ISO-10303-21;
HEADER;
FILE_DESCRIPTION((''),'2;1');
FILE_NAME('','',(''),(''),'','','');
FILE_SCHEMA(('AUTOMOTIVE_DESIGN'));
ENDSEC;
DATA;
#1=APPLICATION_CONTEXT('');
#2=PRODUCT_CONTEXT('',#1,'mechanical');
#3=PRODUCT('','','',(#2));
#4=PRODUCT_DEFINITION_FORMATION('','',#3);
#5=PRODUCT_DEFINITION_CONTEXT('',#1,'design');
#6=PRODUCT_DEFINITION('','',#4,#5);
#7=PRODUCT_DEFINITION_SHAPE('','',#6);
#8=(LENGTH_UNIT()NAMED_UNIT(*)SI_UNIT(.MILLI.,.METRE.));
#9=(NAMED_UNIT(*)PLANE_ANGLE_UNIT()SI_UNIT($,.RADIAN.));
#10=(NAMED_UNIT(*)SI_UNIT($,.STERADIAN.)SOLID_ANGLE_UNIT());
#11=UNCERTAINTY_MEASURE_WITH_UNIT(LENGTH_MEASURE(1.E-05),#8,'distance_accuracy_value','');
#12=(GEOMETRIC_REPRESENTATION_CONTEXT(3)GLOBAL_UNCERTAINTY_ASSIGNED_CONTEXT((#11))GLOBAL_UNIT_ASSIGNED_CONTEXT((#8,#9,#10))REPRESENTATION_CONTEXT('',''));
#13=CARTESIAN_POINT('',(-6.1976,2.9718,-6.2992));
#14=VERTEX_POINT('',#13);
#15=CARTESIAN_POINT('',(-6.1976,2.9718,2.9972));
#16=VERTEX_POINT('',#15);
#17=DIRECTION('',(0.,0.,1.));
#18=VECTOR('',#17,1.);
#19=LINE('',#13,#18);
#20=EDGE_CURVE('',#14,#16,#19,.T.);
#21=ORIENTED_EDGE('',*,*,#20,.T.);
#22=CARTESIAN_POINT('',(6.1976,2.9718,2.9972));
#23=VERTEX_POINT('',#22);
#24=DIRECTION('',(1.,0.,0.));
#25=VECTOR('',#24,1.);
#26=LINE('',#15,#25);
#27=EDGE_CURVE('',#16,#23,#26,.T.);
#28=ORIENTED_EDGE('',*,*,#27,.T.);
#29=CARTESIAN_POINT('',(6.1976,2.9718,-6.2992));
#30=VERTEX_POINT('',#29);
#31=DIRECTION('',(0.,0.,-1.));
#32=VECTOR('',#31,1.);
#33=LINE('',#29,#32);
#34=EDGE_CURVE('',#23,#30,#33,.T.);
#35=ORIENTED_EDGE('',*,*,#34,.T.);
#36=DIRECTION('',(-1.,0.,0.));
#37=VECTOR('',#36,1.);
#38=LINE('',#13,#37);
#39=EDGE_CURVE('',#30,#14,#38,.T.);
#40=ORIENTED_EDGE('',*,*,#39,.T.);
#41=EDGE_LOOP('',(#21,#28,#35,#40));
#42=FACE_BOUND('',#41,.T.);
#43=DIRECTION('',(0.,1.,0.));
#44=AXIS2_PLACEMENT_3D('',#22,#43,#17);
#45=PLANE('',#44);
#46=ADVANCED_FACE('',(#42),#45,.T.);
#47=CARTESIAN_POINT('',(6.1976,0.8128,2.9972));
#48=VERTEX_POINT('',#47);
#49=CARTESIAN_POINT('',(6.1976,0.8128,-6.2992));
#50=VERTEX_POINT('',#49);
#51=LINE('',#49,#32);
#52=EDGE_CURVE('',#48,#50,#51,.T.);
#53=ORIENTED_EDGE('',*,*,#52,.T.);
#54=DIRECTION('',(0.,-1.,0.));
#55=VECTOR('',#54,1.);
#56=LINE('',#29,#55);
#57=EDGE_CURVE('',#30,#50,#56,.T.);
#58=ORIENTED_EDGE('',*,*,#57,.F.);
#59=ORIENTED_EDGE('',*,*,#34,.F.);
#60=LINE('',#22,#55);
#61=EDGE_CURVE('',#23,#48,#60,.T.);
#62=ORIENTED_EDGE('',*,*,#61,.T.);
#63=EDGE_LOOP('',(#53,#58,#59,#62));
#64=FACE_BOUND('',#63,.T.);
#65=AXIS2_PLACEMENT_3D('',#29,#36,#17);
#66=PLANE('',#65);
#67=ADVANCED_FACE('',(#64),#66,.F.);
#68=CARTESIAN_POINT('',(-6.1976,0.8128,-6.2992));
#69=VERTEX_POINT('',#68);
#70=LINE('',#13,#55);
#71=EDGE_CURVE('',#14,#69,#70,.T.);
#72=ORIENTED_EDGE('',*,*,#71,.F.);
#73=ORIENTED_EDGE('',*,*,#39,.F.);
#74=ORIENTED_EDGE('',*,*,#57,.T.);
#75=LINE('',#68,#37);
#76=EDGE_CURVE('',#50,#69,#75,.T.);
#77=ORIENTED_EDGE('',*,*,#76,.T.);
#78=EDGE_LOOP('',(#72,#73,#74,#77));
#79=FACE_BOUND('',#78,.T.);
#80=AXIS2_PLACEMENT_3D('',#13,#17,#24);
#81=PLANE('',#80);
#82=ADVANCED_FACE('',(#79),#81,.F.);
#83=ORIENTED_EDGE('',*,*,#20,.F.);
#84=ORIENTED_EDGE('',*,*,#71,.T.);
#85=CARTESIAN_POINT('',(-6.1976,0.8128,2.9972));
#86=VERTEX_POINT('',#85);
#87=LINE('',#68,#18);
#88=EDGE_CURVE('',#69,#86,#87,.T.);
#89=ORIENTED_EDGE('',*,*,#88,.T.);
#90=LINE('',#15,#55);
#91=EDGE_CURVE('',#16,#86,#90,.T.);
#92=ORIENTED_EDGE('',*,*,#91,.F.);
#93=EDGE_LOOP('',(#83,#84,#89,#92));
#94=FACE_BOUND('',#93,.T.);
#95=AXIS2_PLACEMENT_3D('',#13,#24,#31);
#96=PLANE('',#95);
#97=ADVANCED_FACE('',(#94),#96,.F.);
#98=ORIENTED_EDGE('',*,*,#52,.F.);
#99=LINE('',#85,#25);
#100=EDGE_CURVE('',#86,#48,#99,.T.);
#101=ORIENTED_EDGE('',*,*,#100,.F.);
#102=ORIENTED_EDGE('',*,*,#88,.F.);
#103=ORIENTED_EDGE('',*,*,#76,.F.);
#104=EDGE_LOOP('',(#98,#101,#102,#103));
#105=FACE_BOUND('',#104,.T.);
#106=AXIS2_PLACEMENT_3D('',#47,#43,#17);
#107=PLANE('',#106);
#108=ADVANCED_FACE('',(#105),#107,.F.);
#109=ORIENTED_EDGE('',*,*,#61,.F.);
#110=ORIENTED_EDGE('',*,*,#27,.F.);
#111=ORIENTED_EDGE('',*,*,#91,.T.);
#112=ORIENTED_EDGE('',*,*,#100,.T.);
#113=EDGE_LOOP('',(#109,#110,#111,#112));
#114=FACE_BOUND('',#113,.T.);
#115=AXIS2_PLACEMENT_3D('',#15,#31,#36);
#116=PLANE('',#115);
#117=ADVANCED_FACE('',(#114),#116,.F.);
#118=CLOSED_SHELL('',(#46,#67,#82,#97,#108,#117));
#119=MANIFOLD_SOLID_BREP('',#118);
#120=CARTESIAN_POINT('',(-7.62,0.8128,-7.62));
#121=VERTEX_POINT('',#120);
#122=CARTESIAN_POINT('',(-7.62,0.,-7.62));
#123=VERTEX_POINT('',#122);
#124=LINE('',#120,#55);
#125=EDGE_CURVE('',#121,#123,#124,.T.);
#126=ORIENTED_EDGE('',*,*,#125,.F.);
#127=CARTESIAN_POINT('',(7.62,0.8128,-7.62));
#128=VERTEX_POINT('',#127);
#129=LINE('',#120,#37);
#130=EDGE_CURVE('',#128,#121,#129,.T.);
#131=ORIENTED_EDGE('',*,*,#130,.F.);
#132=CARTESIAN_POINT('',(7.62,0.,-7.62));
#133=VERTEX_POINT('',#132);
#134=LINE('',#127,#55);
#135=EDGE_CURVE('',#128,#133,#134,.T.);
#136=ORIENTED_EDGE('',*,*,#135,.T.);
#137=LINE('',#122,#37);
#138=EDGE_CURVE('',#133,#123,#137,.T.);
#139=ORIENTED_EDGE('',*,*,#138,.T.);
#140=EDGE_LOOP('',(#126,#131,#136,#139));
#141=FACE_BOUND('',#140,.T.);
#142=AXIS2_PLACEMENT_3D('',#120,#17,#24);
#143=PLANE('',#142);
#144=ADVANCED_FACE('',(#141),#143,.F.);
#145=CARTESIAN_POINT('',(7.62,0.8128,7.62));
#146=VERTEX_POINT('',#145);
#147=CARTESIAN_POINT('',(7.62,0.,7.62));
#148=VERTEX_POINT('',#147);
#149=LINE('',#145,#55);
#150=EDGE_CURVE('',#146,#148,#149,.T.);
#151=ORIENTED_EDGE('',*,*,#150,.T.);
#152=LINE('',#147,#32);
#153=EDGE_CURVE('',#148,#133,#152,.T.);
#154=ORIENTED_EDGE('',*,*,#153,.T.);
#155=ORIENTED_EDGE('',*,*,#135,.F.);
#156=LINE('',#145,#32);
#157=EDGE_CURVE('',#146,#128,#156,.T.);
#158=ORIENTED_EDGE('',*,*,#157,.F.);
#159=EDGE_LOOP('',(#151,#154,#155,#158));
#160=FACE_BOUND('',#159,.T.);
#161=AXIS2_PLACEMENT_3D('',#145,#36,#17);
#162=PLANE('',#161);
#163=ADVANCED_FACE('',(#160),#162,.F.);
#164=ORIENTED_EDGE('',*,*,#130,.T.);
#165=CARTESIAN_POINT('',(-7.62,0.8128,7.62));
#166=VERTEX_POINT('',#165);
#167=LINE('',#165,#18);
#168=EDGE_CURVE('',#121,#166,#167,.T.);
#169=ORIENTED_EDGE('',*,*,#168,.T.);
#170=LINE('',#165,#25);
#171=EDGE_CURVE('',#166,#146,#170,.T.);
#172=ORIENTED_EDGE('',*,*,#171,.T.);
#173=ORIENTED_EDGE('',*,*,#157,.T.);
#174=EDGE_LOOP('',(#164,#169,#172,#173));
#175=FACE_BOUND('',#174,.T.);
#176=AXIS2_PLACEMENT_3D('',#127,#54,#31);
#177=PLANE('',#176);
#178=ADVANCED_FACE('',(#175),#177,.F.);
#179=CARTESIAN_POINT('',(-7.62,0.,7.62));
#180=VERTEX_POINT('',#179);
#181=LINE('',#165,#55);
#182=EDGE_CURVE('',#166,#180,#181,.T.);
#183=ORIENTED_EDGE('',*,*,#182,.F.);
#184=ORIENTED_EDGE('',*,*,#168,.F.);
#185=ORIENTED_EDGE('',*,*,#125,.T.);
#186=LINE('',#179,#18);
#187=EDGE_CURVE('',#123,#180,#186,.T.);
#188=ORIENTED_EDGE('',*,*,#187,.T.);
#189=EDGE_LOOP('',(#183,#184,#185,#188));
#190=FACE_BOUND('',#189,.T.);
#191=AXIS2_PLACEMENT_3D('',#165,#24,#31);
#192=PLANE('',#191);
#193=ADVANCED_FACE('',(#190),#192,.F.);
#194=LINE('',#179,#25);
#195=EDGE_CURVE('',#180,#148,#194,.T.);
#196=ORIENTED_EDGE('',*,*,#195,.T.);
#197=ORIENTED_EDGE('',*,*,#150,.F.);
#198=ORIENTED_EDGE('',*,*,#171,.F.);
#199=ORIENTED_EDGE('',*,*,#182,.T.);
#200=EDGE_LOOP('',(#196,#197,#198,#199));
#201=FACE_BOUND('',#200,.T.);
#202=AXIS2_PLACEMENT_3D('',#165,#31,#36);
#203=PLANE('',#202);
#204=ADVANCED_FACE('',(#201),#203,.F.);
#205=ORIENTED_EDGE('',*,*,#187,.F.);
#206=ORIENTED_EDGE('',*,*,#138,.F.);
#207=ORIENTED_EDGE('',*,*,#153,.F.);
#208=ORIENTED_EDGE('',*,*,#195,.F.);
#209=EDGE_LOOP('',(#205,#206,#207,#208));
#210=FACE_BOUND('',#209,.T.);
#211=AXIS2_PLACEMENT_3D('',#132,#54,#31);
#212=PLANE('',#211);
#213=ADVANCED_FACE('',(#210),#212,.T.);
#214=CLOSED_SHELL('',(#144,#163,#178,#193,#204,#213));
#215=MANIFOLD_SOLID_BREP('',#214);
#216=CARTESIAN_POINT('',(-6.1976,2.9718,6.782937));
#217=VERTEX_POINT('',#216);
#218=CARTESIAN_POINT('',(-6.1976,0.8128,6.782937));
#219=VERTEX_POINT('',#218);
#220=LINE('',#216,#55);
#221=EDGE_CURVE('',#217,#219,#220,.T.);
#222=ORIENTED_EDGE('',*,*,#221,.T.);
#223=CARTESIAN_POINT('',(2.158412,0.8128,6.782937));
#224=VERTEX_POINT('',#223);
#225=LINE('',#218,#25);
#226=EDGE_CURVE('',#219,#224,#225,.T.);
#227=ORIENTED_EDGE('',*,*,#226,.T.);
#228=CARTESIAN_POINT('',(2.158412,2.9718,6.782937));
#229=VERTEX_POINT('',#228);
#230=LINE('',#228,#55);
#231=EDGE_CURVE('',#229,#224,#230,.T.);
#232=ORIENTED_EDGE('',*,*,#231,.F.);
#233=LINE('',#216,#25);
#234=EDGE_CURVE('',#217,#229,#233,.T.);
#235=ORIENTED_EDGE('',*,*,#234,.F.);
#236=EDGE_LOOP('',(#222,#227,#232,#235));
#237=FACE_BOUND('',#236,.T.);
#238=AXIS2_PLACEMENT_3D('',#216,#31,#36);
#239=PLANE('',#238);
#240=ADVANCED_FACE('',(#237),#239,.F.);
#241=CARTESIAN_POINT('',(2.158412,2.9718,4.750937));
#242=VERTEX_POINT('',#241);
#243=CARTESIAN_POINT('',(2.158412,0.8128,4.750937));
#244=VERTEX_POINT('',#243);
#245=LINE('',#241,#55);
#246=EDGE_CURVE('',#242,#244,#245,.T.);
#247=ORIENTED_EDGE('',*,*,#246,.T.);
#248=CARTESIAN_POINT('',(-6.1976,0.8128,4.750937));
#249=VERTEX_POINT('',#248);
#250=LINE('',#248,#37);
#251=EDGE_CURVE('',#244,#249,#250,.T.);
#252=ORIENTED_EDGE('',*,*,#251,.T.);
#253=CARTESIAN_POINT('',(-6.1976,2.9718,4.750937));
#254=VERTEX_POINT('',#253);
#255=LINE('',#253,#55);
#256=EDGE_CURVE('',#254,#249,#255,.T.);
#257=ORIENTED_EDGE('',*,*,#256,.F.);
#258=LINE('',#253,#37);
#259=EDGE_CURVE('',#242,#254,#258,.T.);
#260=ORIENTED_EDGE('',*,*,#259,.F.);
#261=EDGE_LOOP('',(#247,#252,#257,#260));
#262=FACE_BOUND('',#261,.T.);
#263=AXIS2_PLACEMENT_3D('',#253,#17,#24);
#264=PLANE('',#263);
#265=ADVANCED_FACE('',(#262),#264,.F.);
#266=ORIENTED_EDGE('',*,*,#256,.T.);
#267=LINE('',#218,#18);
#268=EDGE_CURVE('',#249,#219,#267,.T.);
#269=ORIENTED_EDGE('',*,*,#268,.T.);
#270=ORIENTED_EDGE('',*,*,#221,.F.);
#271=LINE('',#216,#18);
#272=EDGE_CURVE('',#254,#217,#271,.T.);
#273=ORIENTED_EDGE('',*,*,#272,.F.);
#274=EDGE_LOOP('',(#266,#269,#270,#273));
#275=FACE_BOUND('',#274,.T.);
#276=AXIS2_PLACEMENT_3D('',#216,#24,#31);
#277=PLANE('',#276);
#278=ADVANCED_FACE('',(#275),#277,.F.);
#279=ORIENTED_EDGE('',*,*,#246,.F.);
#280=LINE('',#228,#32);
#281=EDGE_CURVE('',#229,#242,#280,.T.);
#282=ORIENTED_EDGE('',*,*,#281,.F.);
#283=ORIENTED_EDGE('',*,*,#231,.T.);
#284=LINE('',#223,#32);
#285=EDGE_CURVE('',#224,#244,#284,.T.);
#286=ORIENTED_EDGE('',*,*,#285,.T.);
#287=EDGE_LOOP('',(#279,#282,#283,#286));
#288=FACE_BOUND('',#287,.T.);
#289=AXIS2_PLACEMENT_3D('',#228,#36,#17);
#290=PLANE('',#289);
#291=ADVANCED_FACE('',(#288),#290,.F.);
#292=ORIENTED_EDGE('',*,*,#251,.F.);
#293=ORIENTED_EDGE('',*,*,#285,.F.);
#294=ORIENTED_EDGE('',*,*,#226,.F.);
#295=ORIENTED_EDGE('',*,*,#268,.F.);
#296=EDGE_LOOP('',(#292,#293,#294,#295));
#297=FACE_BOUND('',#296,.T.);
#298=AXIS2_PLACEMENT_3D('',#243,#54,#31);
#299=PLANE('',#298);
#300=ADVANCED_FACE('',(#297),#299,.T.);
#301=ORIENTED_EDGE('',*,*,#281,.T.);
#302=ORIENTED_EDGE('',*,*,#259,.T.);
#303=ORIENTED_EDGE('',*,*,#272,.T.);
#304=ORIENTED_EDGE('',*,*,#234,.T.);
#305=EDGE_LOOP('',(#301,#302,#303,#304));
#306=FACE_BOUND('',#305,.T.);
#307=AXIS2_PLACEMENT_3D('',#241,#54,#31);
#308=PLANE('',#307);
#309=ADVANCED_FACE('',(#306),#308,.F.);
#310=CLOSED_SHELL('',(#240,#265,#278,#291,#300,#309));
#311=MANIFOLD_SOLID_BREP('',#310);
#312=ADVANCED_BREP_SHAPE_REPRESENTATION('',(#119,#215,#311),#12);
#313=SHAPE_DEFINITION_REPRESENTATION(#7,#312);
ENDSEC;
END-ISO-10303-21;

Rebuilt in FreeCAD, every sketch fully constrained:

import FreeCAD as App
import Part
import Sketcher
from FreeCAD import Vector
Q = App.Units.Quantity


def add_polygon(sketch, points):
    """Adds a closed chain of lines whose ends are joined by coincident constraints."""
    first, n = sketch.GeometryCount, len(points)
    for a, b in zip(points, points[1:] + points[:1]):
        sketch.addGeometry(Part.LineSegment(App.Vector(*a, 0), App.Vector(*b, 0)), False)
    for i in range(n):
        sketch.addConstraint(Sketcher.Constraint("Coincident", first + i, 2, first + (i + 1) % n, 1))

doc = App.newDocument("Part")
params = doc.addObject("Spreadsheet::Sheet", "Params")
for row, (alias, value) in enumerate([
    ("sketch1_width", "0.6 in"),
    ("pad1_length", "0.032 in"),
    ("sketch2_width", "0.488 in"),
    ("sketch2_height", "0.366 in"),
    ("pad2_length", "0.085 in"),
    ("sketch3_height", "0.08 in"),
    ("pad3_length", "0.085 in"),
], start=1):
    params.set(f"A{row}", alias)
    params.set(f"B{row}", "=" + value)
    params.setAlias(f"B{row}", alias)

body = doc.addObject("PartDesign::Body", "Body")

sketch1 = body.newObject("Sketcher::SketchObject", "Sketch")
sketch1.AttachmentSupport = (doc.getObject("XZ_Plane"), [""])
sketch1.MapMode = "FlatFace"
add_polygon(sketch1, [(-8, -8), (-8, 8), (8, 8), (8, -8)])
sketch1.addConstraint([
    Sketcher.Constraint("Vertical", 0),
    Sketcher.Constraint("Horizontal", 1),
    Sketcher.Constraint("Vertical", 2),
    Sketcher.Constraint("Horizontal", 3),
    Sketcher.Constraint("Symmetric", 0, 2, 2, 2, -1, 1),
    Sketcher.Constraint("Equal", 3, 0),
    Sketcher.Constraint("DistanceX", 1, 1, 1, 2, Q("0.6 in")),
])
sketch1.setExpression("Constraints[10]", "Params.sketch1_width")
pad1 = body.newObject("PartDesign::Pad", "Pad")
pad1.Profile = sketch1
pad1.setExpression("Length", "Params.pad1_length")
pad1.Reversed = True
body2 = doc.addObject("PartDesign::Body", "Body001")

sketch2 = body2.newObject("Sketcher::SketchObject", "Sketch001")
sketch2.AttachmentSupport = (doc.getObject("XZ_Plane001"), [""])
sketch2.MapMode = "FlatFace"
sketch2.AttachmentOffset = App.Placement(Vector(0, 0, -0.032 * 25.4), App.Rotation())
add_polygon(sketch2, [(6, 3), (6, -6), (-6, -6), (-6, 3)])
sketch2.addConstraint([
    Sketcher.Constraint("Vertical", 0),
    Sketcher.Constraint("Horizontal", 1),
    Sketcher.Constraint("Vertical", 2),
    Sketcher.Constraint("Horizontal", 3),
    Sketcher.Constraint("DistanceX", 1, 2, 1, 1, Q("0.488 in")),
    Sketcher.Constraint("DistanceY", 0, 2, 0, 1, Q("0.366 in")),
    Sketcher.Constraint("DistanceX", -1, 1, 0, 2, Q("0.244 in")),
    Sketcher.Constraint("DistanceY", 0, 2, -1, 1, Q("0.248 in")),
])
sketch2.setExpression("Constraints[8]", "Params.sketch2_width")
sketch2.setExpression("Constraints[9]", "Params.sketch2_height")
pad2 = body2.newObject("PartDesign::Pad", "Pad001")
pad2.Profile = sketch2
pad2.setExpression("Length", "Params.pad2_length")
pad2.Reversed = True
body3 = doc.addObject("PartDesign::Body", "Body002")

sketch3 = body3.newObject("Sketcher::SketchObject", "Sketch002")
sketch3.AttachmentSupport = (doc.getObject("XZ_Plane002"), [""])
sketch3.MapMode = "FlatFace"
sketch3.AttachmentOffset = App.Placement(Vector(0, 0, -0.032 * 25.4), App.Rotation())
add_polygon(sketch3, [(2.2, 6.8), (2.2, 4.8), (-6.2, 4.8), (-6.2, 6.8)])
sketch3.addConstraint([
    Sketcher.Constraint("Vertical", 0),
    Sketcher.Constraint("Horizontal", 1),
    Sketcher.Constraint("Vertical", 2),
    Sketcher.Constraint("Horizontal", 3),
    Sketcher.Constraint("DistanceY", 0, 2, 0, 1, Q("0.08 in")),
    Sketcher.Constraint("DistanceX", 1, 2, -1, 1, Q("0.244 in")),
    Sketcher.Constraint("DistanceX", 1, 2, 1, 1, 8.356012),
    Sketcher.Constraint("DistanceY", -1, 1, 0, 2, 4.750937),
])
sketch3.setExpression("Constraints[8]", "Params.sketch3_height")
pad3 = body3.newObject("PartDesign::Pad", "Pad002")
pad3.Profile = sketch3
pad3.setExpression("Length", "Params.pad3_length")
pad3.Reversed = True

doc.recompute()
